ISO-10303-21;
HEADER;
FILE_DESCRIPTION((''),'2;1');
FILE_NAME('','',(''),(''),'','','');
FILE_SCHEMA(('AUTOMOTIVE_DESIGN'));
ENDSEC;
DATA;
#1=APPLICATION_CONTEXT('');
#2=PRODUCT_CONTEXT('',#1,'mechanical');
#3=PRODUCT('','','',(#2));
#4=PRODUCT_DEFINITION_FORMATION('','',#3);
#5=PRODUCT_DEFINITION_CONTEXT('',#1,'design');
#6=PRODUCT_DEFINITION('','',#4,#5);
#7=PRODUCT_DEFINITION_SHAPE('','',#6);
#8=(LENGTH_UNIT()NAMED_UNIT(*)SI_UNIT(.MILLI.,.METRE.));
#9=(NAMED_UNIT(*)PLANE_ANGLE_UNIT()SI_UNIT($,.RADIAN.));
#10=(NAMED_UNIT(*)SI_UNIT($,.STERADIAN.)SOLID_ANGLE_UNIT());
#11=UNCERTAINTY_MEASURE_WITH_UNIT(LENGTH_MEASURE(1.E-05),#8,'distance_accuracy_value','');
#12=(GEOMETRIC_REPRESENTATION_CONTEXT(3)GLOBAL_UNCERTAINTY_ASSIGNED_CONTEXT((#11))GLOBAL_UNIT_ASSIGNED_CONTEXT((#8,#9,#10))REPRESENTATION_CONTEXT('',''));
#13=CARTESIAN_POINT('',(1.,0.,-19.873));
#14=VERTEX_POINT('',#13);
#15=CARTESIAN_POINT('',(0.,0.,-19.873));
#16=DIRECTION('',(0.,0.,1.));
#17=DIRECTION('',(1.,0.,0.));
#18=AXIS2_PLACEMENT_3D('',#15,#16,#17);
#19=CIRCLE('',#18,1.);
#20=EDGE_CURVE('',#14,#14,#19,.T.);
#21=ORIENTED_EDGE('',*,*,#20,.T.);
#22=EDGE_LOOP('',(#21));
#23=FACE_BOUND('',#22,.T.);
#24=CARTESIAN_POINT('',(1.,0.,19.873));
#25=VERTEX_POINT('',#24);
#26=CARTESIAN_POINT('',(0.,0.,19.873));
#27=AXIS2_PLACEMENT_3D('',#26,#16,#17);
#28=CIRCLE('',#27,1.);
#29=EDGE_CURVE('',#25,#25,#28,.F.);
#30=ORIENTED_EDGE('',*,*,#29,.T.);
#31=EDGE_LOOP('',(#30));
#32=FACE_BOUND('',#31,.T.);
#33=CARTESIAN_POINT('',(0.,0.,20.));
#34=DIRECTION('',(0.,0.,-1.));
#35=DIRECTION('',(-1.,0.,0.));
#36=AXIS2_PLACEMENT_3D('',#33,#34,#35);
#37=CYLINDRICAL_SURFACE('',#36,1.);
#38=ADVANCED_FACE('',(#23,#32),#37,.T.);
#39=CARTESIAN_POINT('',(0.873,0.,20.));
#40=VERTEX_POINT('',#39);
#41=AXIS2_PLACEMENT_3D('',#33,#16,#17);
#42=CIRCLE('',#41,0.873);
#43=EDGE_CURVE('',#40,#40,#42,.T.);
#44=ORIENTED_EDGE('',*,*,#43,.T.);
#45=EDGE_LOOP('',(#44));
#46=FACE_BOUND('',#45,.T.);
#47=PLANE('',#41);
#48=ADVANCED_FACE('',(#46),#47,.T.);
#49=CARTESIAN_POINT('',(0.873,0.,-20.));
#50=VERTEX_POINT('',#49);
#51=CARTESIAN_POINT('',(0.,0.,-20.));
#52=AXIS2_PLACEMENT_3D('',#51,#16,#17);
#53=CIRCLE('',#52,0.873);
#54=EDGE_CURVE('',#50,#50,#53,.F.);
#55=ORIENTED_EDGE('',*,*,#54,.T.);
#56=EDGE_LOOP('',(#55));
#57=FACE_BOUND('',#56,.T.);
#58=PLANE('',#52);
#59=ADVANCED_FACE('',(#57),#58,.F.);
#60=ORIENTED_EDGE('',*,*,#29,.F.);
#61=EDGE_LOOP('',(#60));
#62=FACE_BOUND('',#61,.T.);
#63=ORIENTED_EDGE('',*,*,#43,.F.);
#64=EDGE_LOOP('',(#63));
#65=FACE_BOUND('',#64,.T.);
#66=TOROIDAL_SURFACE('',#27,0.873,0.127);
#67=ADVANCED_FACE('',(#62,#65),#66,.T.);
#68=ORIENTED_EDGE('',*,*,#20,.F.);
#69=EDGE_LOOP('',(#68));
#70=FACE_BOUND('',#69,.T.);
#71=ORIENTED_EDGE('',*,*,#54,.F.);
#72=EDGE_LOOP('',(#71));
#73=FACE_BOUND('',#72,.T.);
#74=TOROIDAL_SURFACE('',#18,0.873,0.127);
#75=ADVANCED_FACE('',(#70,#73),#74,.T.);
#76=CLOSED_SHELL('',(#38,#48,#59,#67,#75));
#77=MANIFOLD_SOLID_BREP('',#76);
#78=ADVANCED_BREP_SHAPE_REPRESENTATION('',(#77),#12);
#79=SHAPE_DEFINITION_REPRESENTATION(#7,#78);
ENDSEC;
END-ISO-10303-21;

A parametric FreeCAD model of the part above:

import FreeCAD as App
import Part
import Sketcher

V = App.Vector


def edges_at(feature, points):
    """Names of the edges that pass closest to the given points."""
    edges = feature.Shape.Edges
    near = lambda p: min(range(len(edges)), key=lambda i: edges[i].distToShape(Part.Vertex(*p))[0])
    return sorted({f"Edge{near(p) + 1}" for p in points})

doc = App.newDocument("Part")
body = doc.addObject("PartDesign::Body", "Body")

sketch1 = doc.addObject("Sketcher::SketchObject", "Sketch")
body.addObject(sketch1)
sketch1.AttachmentSupport = (doc.XY_Plane, [""])
sketch1.MapMode = "FlatFace"
sketch1.addGeometry(Part.Circle(V(0, 0, 0), V(0, 0, 1), 1), False)
sketch1.addConstraint([
    Sketcher.Constraint("Coincident", 0, 3, -1, 1),
    Sketcher.Constraint("Diameter", 0, 2.0),
])
pad1 = doc.addObject("PartDesign::Pad", "Pad")
body.addObject(pad1)
pad1.Profile = sketch1
pad1.Length = 40
pad1.Midplane = True
doc.recompute()

fillet = doc.addObject("PartDesign::Fillet", "Fillet")
body.addObject(fillet)
fillet.Base = (pad1, edges_at(pad1, [(-1, 0, -20), (-1, 0, 20)]))
fillet.Radius = 0.127

doc.recompute()
